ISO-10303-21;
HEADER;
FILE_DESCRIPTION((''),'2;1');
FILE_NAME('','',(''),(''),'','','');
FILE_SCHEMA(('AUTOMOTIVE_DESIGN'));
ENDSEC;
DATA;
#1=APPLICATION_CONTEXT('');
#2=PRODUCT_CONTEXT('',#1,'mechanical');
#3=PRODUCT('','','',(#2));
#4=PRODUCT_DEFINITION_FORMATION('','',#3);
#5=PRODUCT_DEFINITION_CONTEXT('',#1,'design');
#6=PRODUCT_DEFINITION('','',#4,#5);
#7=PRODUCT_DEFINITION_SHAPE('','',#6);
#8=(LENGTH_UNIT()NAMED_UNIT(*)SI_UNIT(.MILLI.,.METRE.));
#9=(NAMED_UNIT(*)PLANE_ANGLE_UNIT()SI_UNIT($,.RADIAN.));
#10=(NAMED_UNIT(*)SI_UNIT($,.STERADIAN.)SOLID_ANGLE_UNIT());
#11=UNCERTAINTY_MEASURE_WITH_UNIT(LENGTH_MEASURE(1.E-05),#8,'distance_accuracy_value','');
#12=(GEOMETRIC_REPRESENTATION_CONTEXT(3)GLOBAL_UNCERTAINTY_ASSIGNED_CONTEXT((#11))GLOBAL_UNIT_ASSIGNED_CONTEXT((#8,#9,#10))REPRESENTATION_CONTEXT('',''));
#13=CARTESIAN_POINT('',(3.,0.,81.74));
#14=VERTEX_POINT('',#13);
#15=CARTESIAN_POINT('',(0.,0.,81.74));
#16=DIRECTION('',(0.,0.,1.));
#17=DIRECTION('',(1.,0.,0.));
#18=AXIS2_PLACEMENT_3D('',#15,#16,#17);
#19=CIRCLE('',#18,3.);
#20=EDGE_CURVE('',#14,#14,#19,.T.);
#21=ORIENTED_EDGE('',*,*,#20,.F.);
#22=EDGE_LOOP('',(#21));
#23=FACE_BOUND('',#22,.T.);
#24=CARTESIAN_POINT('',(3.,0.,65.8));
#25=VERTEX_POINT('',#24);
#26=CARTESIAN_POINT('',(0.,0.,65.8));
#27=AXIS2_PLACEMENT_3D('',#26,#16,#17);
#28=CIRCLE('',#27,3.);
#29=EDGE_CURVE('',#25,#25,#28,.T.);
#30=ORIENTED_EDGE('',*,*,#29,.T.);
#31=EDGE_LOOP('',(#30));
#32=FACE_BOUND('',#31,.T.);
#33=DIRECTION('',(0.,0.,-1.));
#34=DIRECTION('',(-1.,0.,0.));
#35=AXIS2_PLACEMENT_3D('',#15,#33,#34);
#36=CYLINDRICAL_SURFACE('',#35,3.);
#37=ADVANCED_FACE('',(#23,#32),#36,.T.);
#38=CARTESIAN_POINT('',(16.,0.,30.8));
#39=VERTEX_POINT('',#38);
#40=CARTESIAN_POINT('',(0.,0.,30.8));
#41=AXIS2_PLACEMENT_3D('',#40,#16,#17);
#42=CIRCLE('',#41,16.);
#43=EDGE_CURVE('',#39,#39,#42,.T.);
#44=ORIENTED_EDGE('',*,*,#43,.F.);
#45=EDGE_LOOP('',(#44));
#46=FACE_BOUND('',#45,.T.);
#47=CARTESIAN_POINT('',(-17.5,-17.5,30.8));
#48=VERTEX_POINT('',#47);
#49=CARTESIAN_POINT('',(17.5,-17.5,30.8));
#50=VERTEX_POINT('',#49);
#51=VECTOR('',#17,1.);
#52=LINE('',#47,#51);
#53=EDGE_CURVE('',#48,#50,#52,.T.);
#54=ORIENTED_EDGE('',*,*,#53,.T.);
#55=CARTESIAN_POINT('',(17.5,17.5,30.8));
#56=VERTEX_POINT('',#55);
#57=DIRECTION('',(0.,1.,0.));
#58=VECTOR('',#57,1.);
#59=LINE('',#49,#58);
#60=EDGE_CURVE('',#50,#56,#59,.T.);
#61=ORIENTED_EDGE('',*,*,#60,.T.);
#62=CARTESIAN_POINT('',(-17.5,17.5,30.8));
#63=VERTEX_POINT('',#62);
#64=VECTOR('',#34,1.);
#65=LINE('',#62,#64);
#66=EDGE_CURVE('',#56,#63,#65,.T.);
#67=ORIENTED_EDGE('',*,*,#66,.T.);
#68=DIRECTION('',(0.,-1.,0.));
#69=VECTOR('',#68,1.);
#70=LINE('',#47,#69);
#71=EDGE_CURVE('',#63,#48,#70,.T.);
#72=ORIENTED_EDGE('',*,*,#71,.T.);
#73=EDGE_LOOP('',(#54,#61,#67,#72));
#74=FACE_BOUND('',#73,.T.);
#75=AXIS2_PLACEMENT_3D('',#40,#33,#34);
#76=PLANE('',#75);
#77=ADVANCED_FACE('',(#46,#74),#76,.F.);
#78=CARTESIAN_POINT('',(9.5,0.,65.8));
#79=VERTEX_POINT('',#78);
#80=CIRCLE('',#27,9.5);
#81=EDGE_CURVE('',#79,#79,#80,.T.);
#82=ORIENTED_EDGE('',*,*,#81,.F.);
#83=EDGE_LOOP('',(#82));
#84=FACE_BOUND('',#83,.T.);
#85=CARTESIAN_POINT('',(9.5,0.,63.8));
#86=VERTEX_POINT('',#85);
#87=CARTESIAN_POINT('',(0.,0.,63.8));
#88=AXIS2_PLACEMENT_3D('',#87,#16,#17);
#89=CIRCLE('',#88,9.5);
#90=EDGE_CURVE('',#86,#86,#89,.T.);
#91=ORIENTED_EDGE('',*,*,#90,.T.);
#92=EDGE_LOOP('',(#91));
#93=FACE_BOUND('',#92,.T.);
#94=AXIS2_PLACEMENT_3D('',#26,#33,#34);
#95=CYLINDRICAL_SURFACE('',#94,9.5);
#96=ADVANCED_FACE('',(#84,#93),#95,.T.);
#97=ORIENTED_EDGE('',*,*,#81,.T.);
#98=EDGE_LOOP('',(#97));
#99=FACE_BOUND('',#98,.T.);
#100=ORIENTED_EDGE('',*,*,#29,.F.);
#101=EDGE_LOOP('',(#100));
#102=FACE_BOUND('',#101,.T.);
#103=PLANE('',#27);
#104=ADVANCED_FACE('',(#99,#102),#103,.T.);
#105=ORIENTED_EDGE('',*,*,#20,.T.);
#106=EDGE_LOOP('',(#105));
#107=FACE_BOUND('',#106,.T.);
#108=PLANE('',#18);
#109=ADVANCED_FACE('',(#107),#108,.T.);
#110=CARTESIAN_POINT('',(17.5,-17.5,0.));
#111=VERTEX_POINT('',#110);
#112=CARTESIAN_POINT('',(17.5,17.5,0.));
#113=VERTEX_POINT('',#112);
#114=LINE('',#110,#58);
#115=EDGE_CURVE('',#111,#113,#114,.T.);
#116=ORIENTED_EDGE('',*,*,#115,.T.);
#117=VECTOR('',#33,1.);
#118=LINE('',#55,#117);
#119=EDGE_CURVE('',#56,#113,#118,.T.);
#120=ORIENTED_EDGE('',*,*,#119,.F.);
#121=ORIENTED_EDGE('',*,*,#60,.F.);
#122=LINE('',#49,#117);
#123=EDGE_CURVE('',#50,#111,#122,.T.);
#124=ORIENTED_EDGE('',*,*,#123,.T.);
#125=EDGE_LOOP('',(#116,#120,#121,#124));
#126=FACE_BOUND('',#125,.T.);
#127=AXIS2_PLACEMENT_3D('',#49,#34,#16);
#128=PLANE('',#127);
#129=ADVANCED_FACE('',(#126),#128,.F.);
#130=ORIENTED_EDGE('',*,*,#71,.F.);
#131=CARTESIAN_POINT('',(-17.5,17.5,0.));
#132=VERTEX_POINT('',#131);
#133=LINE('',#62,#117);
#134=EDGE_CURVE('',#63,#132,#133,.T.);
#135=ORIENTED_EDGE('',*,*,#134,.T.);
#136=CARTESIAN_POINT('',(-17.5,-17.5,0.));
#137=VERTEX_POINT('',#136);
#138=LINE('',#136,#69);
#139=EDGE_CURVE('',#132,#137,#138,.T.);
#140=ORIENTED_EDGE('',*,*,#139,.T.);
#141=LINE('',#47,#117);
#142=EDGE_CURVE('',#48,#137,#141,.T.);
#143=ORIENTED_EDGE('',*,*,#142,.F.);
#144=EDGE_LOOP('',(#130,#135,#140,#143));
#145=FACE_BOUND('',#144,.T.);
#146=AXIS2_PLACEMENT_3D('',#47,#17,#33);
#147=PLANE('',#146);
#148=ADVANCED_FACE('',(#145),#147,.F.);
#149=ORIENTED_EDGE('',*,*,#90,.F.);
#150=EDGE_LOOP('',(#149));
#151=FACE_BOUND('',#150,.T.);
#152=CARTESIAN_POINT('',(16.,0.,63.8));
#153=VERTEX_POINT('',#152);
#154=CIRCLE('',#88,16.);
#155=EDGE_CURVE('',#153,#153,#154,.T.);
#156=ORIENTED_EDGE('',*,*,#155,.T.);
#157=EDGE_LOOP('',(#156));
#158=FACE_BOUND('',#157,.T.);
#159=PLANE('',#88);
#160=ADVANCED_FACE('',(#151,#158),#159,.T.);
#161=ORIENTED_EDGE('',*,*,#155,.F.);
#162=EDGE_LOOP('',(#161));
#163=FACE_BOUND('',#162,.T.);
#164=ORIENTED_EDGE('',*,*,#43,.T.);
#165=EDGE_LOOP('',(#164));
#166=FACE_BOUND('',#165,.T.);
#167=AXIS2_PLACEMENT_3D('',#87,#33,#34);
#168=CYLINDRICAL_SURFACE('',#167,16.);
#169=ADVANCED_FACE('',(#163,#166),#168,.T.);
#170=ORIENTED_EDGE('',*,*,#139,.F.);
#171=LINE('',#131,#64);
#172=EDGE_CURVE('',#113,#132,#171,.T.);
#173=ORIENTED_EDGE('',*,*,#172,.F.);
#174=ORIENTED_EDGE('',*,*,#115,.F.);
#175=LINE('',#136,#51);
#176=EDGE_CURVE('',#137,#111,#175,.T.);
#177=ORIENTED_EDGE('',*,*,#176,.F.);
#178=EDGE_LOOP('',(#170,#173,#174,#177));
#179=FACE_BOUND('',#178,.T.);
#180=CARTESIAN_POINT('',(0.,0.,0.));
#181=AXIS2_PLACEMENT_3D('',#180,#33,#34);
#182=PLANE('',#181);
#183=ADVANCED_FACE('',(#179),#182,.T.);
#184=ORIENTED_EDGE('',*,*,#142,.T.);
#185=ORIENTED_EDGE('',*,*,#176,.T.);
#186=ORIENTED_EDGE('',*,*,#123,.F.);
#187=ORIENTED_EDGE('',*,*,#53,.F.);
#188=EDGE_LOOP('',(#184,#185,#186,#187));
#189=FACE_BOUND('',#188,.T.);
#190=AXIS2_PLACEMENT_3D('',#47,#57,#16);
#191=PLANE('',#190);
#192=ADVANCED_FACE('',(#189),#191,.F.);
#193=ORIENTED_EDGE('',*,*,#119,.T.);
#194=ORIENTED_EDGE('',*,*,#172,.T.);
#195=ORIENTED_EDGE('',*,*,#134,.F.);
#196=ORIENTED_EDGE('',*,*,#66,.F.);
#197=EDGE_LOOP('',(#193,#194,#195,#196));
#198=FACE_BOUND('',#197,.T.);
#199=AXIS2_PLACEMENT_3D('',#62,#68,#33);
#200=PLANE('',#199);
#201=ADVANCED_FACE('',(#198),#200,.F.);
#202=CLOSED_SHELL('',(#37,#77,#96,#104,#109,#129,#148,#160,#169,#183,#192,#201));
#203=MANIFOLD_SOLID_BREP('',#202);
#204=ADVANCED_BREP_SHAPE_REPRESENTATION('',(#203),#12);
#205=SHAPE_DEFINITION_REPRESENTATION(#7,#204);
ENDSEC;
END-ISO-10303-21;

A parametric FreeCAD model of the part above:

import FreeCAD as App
import Part
import Sketcher
Q = App.Units.Quantity

doc = App.newDocument("Part")
params = doc.addObject("Spreadsheet::Sheet", "Params")
for row, (alias, value) in enumerate([
    ("sketch1_width", "35 mm"),
    ("pad1_length", "30.8 mm"),
    ("sketch2_diameter", "32 mm"),
    ("pad2_length", "33 mm"),
    ("sketch3_diameter", "19 mm"),
    ("pad3_length", "2 mm"),
    ("sketch4_diameter", "6 mm"),
    ("pad4_length", "15.94 mm"),
], start=1):
    params.set(f"A{row}", alias)
    params.set(f"B{row}", "=" + value)
    params.setAlias(f"B{row}", alias)

body = doc.addObject("PartDesign::Body", "Body")

# Sketch on XY plane
sketch1 = body.newObject("Sketcher::SketchObject", "Sketch")
sketch1.AttachmentSupport = (doc.getObject("XY_Plane"), [""])
sketch1.MapMode = "FlatFace"
sketch1.addGeometry([
    Part.LineSegment(App.Vector(-18, 18, 0), App.Vector(-18, -18, 0)),
    Part.LineSegment(App.Vector(-18, -18, 0), App.Vector(18, -18, 0)),
    Part.LineSegment(App.Vector(18, -18, 0), App.Vector(18, 18, 0)),
    Part.LineSegment(App.Vector(18, 18, 0), App.Vector(-18, 18, 0)),
], False)
sketch1.addConstraint([
    Sketcher.Constraint("Coincident", 0, 2, 1, 1),
    Sketcher.Constraint("Coincident", 1, 2, 2, 1),
    Sketcher.Constraint("Coincident", 2, 2, 3, 1),
    Sketcher.Constraint("Coincident", 3, 2, 0, 1),
    Sketcher.Constraint("Vertical", 0),
    Sketcher.Constraint("Horizontal", 1),
    Sketcher.Constraint("Vertical", 2),
    Sketcher.Constraint("Horizontal", 3),
    Sketcher.Constraint("Symmetric", 0, 2, 2, 2, -1, 1),
    Sketcher.Constraint("Equal", 3, 0),
    Sketcher.Constraint("DistanceX", 1, 1, 1, 2, Q("35 mm")),
])
sketch1.setExpression("Constraints[10]", "Params.sketch1_width")
pad1 = body.newObject("PartDesign::Pad", "Pad")
pad1.Profile = sketch1
pad1.setExpression("Length", "Params.pad1_length")

# Sketch on XY plane
sketch2 = body.newObject("Sketcher::SketchObject", "Sketch001")
sketch2.AttachmentSupport = (doc.getObject("XY_Plane"), [""])
sketch2.MapMode = "FlatFace"
sketch2.AttachmentOffset = App.Placement(App.Vector(0, 0, 30.8), App.Rotation())
sketch2.addGeometry(Part.Circle(App.Vector(0, 0, 0), App.Vector(0, 0, 1), 16), False)
sketch2.addConstraint([
    Sketcher.Constraint("Coincident", 0, 3, -1, 1),
    Sketcher.Constraint("Diameter", 0, Q("32 mm")),
])
sketch2.setExpression("Constraints[1]", "Params.sketch2_diameter")
pad2 = body.newObject("PartDesign::Pad", "Pad001")
pad2.Profile = sketch2
pad2.setExpression("Length", "Params.pad2_length")

# Sketch on XY plane
sketch3 = body.newObject("Sketcher::SketchObject", "Sketch002")
sketch3.AttachmentSupport = (doc.getObject("XY_Plane"), [""])
sketch3.MapMode = "FlatFace"
sketch3.AttachmentOffset = App.Placement(App.Vector(0, 0, 63.8), App.Rotation())
sketch3.addGeometry(Part.Circle(App.Vector(0, 0, 0), App.Vector(0, 0, 1), 10), False)
sketch3.addConstraint([
    Sketcher.Constraint("Coincident", 0, 3, -1, 1),
    Sketcher.Constraint("Diameter", 0, Q("19 mm")),
])
sketch3.setExpression("Constraints[1]", "Params.sketch3_diameter")
pad3 = body.newObject("PartDesign::Pad", "Pad002")
pad3.Profile = sketch3
pad3.setExpression("Length", "Params.pad3_length")

# Sketch on XY plane
sketch4 = body.newObject("Sketcher::SketchObject", "Sketch003")
sketch4.AttachmentSupport = (doc.getObject("XY_Plane"), [""])
sketch4.MapMode = "FlatFace"
sketch4.AttachmentOffset = App.Placement(App.Vector(0, 0, 65.8), App.Rotation())
sketch4.addGeometry(Part.Circle(App.Vector(0, 0, 0), App.Vector(0, 0, 1), 3), False)
sketch4.addConstraint([
    Sketcher.Constraint("Coincident", 0, 3, -1, 1),
    Sketcher.Constraint("Diameter", 0, Q("6 mm")),
])
sketch4.setExpression("Constraints[1]", "Params.sketch4_diameter")
pad4 = body.newObject("PartDesign::Pad", "Pad003")
pad4.Profile = sketch4
pad4.setExpression("Length", "Params.pad4_length")

doc.recompute()
